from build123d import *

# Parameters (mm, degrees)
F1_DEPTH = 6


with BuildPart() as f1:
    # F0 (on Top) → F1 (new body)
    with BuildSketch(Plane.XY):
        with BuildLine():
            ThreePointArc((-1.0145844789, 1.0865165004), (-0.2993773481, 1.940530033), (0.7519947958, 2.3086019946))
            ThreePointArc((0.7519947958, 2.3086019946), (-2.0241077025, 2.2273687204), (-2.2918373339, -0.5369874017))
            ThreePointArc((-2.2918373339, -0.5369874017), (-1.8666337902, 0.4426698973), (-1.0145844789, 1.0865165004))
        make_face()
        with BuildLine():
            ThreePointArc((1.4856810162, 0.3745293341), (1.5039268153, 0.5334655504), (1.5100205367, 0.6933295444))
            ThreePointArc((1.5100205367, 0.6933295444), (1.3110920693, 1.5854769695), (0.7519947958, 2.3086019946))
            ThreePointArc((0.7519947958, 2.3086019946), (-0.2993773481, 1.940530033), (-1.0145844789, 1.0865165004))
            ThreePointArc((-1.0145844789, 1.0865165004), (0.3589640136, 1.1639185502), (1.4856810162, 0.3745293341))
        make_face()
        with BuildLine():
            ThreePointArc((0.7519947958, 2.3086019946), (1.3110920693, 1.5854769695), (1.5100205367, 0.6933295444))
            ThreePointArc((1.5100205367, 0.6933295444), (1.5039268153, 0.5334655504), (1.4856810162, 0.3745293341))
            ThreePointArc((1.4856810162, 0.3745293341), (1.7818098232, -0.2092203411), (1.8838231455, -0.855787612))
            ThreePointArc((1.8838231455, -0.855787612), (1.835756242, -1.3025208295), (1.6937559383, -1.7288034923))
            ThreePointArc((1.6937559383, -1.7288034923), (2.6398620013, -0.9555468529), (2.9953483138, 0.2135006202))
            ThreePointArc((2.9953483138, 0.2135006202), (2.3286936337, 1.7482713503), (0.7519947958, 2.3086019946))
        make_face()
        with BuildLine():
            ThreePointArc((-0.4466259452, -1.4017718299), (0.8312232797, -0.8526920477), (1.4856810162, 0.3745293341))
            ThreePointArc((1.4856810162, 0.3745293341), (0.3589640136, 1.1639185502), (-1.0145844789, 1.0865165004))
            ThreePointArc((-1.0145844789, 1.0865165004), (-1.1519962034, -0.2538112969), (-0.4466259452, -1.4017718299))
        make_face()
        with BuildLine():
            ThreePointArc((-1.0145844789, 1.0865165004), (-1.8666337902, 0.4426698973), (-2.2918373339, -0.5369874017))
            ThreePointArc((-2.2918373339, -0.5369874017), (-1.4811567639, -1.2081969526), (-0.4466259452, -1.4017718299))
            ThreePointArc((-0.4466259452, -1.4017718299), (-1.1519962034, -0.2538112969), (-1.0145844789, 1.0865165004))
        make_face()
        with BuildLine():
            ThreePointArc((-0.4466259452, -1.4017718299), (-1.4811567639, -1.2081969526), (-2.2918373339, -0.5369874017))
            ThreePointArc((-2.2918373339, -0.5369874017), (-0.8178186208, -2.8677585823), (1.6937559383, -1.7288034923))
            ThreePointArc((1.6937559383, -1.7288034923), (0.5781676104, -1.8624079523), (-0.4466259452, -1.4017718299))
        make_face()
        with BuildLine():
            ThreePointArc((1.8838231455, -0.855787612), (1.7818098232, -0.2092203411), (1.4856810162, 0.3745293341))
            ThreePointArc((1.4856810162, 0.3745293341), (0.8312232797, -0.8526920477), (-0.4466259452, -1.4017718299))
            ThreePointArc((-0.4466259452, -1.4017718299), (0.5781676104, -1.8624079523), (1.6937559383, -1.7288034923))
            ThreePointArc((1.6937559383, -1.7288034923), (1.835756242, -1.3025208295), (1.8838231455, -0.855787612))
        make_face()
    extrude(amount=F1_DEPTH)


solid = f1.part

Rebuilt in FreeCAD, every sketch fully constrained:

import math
import FreeCAD as App
import Part
import Sketcher

V = App.Vector

doc = App.newDocument("Part")
body = doc.addObject("PartDesign::Body", "Body")

# Sketch on XY plane
sketch1 = body.newObject("Sketcher::SketchObject", "Sketch")
sketch1.AttachmentSupport = (doc.getObject("XY_Plane"), [""])
sketch1.MapMode = "FlatFace"
sketch1.addGeometry([
    Part.ArcOfCircle(Part.Circle(V(-0.2, -0.9, 0), V(0, 0, 1), 2.1), math.radians(171), math.radians(335)),
    Part.ArcOfCircle(Part.Circle(V(0.9, 0.2, 0), V(0, 0, 1), 2.1), math.radians(-68), math.radians(0)),
    Part.ArcOfCircle(Part.Circle(V(0.9, 0.2, 0), V(0, 0, 1), 2.1), math.radians(0), math.radians(94)),
    Part.ArcOfCircle(Part.Circle(V(-0.6, 0.7, 0), V(0, 0, 1), 2.1), math.radians(50), math.radians(216)),
], False)
sketch1.addConstraint([
    Sketcher.Constraint("Coincident", 0, 2, 1, 1),
    Sketcher.Constraint("Tangent", 1, 2, 2, 1),
    Sketcher.Constraint("Coincident", 2, 2, 3, 1),
    Sketcher.Constraint("Coincident", 3, 2, 0, 1),
    Sketcher.Constraint("Equal", 0, 1),
    Sketcher.Constraint("Equal", 1, 2),
    Sketcher.Constraint("Equal", 2, 3),
    Sketcher.Constraint("Horizontal", 2, 3, 1, 2),
    Sketcher.Constraint("Radius", 0, 2.1),
    Sketcher.Constraint("DistanceY", -1, 1, 1, 3, 0.213501),
    Sketcher.Constraint("DistanceY", -1, 1, 2, 2, 2.308602),
    Sketcher.Constraint("DistanceY", 0, 3, 3, 2, 0.3188),
    Sketcher.Constraint("DistanceX", -1, 1, 1, 3, 0.895348),
    Sketcher.Constraint("DistanceX", 3, 3, -1, 1, 0.589979),
    Sketcher.Constraint("DistanceY", 0, 3, 1, 3, 1.069288),
])
pad1 = body.newObject("PartDesign::Pad", "Pad")
pad1.Profile = sketch1
pad1.Length = 6

doc.recompute()
